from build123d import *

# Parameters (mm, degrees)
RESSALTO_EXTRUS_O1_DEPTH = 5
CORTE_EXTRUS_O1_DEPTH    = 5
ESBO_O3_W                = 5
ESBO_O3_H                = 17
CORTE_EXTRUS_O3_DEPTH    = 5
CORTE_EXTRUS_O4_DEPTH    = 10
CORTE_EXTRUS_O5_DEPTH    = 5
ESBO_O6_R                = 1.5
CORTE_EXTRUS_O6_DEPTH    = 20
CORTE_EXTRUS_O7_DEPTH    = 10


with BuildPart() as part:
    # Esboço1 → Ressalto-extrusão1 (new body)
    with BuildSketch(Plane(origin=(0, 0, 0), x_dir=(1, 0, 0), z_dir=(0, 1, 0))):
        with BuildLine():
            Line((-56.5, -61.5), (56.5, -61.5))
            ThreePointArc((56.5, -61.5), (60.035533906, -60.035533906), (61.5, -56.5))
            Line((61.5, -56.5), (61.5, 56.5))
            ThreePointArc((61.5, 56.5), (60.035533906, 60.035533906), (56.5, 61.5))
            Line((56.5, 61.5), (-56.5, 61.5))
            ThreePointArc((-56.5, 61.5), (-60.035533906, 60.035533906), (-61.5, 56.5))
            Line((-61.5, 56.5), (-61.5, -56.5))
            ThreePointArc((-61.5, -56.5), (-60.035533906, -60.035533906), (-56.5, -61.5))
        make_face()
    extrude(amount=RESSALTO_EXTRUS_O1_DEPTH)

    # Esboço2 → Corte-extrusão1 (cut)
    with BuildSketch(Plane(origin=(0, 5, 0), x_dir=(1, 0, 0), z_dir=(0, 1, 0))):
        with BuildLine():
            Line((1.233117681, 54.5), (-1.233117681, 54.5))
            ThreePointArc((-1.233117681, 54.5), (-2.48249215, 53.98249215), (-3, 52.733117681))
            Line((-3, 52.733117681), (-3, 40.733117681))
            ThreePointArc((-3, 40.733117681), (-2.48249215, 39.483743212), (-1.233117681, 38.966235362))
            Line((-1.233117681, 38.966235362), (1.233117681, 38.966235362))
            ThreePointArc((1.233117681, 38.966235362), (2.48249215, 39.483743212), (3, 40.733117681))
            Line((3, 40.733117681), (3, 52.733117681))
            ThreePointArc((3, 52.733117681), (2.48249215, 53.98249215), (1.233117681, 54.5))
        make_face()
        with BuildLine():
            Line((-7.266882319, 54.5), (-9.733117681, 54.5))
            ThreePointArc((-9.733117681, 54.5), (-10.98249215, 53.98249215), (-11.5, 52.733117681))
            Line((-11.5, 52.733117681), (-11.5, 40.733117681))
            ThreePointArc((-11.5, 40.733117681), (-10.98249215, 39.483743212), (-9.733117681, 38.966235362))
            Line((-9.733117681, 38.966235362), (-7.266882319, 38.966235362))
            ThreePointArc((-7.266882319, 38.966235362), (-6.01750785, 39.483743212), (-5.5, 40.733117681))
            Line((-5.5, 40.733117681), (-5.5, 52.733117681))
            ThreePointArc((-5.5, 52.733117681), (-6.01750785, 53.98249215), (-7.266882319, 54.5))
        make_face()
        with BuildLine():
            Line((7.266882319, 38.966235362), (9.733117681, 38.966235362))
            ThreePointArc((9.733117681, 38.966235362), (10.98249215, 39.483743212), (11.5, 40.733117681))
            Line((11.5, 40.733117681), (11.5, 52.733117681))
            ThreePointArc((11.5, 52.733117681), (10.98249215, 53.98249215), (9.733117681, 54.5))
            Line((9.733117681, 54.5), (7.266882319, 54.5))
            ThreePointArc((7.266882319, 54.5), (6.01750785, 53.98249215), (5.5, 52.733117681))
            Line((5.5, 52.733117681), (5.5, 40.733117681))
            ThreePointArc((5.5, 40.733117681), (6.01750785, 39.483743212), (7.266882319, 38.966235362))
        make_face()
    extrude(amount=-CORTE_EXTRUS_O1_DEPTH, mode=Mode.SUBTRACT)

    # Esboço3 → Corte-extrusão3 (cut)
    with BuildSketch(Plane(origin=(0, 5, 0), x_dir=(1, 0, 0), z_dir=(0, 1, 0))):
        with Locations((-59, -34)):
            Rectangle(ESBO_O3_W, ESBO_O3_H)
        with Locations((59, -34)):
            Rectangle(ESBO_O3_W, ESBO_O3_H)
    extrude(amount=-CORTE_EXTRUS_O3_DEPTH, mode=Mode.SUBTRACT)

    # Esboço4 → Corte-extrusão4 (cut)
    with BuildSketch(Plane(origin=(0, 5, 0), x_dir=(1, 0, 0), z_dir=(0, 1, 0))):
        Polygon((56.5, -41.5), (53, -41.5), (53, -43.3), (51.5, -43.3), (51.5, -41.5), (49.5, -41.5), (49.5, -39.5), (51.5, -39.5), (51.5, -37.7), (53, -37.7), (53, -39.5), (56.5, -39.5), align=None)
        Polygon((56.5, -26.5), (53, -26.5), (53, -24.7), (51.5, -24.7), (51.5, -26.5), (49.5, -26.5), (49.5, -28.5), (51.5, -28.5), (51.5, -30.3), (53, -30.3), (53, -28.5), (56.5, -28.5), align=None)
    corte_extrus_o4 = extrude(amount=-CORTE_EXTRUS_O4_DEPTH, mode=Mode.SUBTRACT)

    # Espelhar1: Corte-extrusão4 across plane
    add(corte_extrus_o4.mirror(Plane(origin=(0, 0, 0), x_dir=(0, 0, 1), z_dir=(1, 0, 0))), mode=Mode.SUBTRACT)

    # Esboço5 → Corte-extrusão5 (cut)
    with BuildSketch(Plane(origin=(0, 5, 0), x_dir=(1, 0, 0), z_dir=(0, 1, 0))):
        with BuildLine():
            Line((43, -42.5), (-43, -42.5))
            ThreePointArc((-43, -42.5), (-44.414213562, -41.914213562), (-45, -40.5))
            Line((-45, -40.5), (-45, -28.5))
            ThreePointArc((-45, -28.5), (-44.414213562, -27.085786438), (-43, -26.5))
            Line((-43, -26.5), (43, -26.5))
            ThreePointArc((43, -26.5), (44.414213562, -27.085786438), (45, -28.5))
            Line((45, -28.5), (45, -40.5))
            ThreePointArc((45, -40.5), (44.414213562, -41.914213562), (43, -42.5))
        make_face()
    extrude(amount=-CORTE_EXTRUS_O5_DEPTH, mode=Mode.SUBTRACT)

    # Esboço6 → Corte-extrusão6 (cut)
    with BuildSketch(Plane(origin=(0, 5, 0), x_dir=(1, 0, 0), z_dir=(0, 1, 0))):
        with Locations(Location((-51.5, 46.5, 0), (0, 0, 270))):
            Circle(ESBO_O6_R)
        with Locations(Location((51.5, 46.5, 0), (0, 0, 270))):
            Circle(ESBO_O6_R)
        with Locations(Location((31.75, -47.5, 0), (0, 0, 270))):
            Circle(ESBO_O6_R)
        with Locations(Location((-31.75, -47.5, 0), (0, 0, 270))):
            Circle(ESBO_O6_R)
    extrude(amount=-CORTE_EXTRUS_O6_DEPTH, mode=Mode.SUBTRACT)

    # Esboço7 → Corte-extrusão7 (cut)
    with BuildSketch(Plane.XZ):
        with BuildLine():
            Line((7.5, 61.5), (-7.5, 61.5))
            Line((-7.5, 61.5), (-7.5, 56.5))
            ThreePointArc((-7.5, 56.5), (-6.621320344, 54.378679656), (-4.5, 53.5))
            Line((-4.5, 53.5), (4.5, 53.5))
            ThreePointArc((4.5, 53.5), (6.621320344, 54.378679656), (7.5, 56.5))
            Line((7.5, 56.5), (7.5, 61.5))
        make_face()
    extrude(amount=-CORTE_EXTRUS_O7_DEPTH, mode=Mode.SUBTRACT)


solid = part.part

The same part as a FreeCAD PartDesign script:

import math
import FreeCAD as App
import Part
import Sketcher
Q = App.Units.Quantity

doc = App.newDocument("Part")
params = doc.addObject("Spreadsheet::Sheet", "Params")
for row, (alias, value) in enumerate([
    ("sketch1_radius", "5 mm"),
    ("sketch1_width", "113 mm"),
    ("pad1_length", "5 mm"),
    ("sketch2_height", "12 mm"),
    ("pocket1_length", "5 mm"),
    ("sketch3_width", "5 mm"),
    ("sketch3_height", "17 mm"),
    ("pocket2_length", "5 mm"),
    ("sketch4_width", "2 mm"),
    ("sketch4_width2", "3.5 mm"),
    ("sketch4_width3", "1.5 mm"),
    ("sketch4_height", "1.8 mm"),
    ("pocket3_length", "10 mm"),
    ("sketch5_radius", "2 mm"),
    ("sketch5_width", "86 mm"),
    ("sketch5_height", "12 mm"),
    ("pocket4_length", "5 mm"),
    ("sketch6_diameter", "3 mm"),
    ("pocket5_length", "20 mm"),
    ("sketch7_radius", "3 mm"),
    ("sketch7_width", "15 mm"),
    ("sketch7_height", "5 mm"),
    ("pocket6_length", "10 mm"),
], start=1):
    params.set(f"A{row}", alias)
    params.set(f"B{row}", "=" + value)
    params.setAlias(f"B{row}", alias)

body = doc.addObject("PartDesign::Body", "Body")

# Sketch on XZ plane
sketch1 = body.newObject("Sketcher::SketchObject", "Sketch")
sketch1.AttachmentSupport = (doc.getObject("XZ_Plane"), [""])
sketch1.MapMode = "FlatFace"
sketch1.addGeometry(Part.LineSegment(App.Vector(-56.5, 61.5, 0), App.Vector(56.5, 61.5, 0)), False)
sketch1.addGeometry(Part.ArcOfCircle(Part.Circle(App.Vector(56.5, 56.5, 0), App.Vector(0, 0, 1), 5), math.radians(0), math.radians(90)), False)
sketch1.addGeometry(Part.LineSegment(App.Vector(61.5, 56.5, 0), App.Vector(61.5, -56.5, 0)), False)
sketch1.addGeometry(Part.ArcOfCircle(Part.Circle(App.Vector(56.5, -56.5, 0), App.Vector(0, 0, 1), 5), math.radians(-90), math.radians(0)), False)
sketch1.addGeometry(Part.LineSegment(App.Vector(56.5, -61.5, 0), App.Vector(-56.5, -61.5, 0)), False)
sketch1.addGeometry(Part.ArcOfCircle(Part.Circle(App.Vector(-56.5, -56.5, 0), App.Vector(0, 0, 1), 5), math.radians(180), math.radians(270)), False)
sketch1.addGeometry(Part.LineSegment(App.Vector(-61.5, -56.5, 0), App.Vector(-61.5, 56.5, 0)), False)
sketch1.addGeometry(Part.ArcOfCircle(Part.Circle(App.Vector(-56.5, 56.5, 0), App.Vector(0, 0, 1), 5), math.radians(90), math.radians(180)), False)
sketch1.addConstraint(Sketcher.Constraint("Tangent", 0, 2, 1, 2))
sketch1.addConstraint(Sketcher.Constraint("Tangent", 1, 1, 2, 1))
sketch1.addConstraint(Sketcher.Constraint("Tangent", 2, 2, 3, 2))
sketch1.addConstraint(Sketcher.Constraint("Tangent", 3, 1, 4, 1))
sketch1.addConstraint(Sketcher.Constraint("Tangent", 4, 2, 5, 2))
sketch1.addConstraint(Sketcher.Constraint("Tangent", 5, 1, 6, 1))
sketch1.addConstraint(Sketcher.Constraint("Tangent", 6, 2, 7, 2))
sketch1.addConstraint(Sketcher.Constraint("Tangent", 7, 1, 0, 1))
sketch1.addConstraint(Sketcher.Constraint("Horizontal", 0))
sketch1.addConstraint(Sketcher.Constraint("Vertical", 2))
sketch1.addConstraint(Sketcher.Constraint("Horizontal", 4))
sketch1.addConstraint(Sketcher.Constraint("Vertical", 6))
sketch1.addConstraint(Sketcher.Constraint("Equal", 1, 3))
sketch1.addConstraint(Sketcher.Constraint("Equal", 3, 5))
sketch1.addConstraint(Sketcher.Constraint("Equal", 5, 7))
sketch1.addConstraint(Sketcher.Constraint("Symmetric", 1, 3, 5, 3, -1, 1))
sketch1.addConstraint(Sketcher.Constraint("Equal", 4, 2))
sketch1.addConstraint(Sketcher.Constraint("Radius", 1, Q("5 mm")))
sketch1.addConstraint(Sketcher.Constraint("DistanceX", 0, 1, 0, 2, Q("113 mm")))
sketch1.setExpression("Constraints[17]", "Params.sketch1_radius")
sketch1.setExpression("Constraints[18]", "Params.sketch1_width")
pad1 = body.newObject("PartDesign::Pad", "Pad")
pad1.Profile = sketch1
pad1.setExpression("Length", "Params.pad1_length")
pad1.Reversed = True

# Sketch on XZ plane
sketch2 = body.newObject("Sketcher::SketchObject", "Sketch001")
sketch2.AttachmentSupport = (doc.getObject("XZ_Plane"), [""])
sketch2.MapMode = "FlatFace"
sketch2.AttachmentOffset = App.Placement(App.Vector(0, 0, -5), App.Rotation())
sketch2.addGeometry(Part.LineSegment(App.Vector(1.233118, -54.5, 0), App.Vector(-1.233118, -54.5, 0)), False)
sketch2.addGeometry(Part.ArcOfCircle(Part.Circle(App.Vector(-1.233118, -52.733118, 0), App.Vector(0, 0, 1), 1.766882), math.radians(-180), math.radians(-90)), False)
sketch2.addGeometry(Part.LineSegment(App.Vector(-3, -52.733118, 0), App.Vector(-3, -40.733118, 0)), False)
sketch2.addGeometry(Part.ArcOfCircle(Part.Circle(App.Vector(-1.233118, -40.733118, 0), App.Vector(0, 0, 1), 1.766882), math.radians(90), math.radians(180)), False)
sketch2.addGeometry(Part.LineSegment(App.Vector(-1.233118, -38.966235, 0), App.Vector(1.233118, -38.966235, 0)), False)
sketch2.addGeometry(Part.ArcOfCircle(Part.Circle(App.Vector(1.233118, -40.733118, 0), App.Vector(0, 0, 1), 1.766882), math.radians(0), math.radians(90)), False)
sketch2.addGeometry(Part.LineSegment(App.Vector(3, -40.733118, 0), App.Vector(3, -52.733118, 0)), False)
sketch2.addGeometry(Part.ArcOfCircle(Part.Circle(App.Vector(1.233118, -52.733118, 0), App.Vector(0, 0, 1), 1.766882), math.radians(-90), math.radians(0)), False)
sketch2.addGeometry(Part.LineSegment(App.Vector(-7.266882, -54.5, 0), App.Vector(-9.733118, -54.5, 0)), False)
sketch2.addGeometry(Part.ArcOfCircle(Part.Circle(App.Vector(-9.733118, -52.733118, 0), App.Vector(0, 0, 1), 1.766882), math.radians(-180), math.radians(-90)), False)
sketch2.addGeometry(Part.LineSegment(App.Vector(-11.5, -52.733118, 0), App.Vector(-11.5, -40.733118, 0)), False)
sketch2.addGeometry(Part.ArcOfCircle(Part.Circle(App.Vector(-9.733118, -40.733118, 0), App.Vector(0, 0, 1), 1.766882), math.radians(90), math.radians(180)), False)
sketch2.addGeometry(Part.LineSegment(App.Vector(-9.733118, -38.966235, 0), App.Vector(-7.266882, -38.966235, 0)), False)
sketch2.addGeometry(Part.ArcOfCircle(Part.Circle(App.Vector(-7.266882, -40.733118, 0), App.Vector(0, 0, 1), 1.766882), math.radians(0), math.radians(90)), False)
sketch2.addGeometry(Part.LineSegment(App.Vector(-5.5, -40.733118, 0), App.Vector(-5.5, -52.733118, 0)), False)
sketch2.addGeometry(Part.ArcOfCircle(Part.Circle(App.Vector(-7.266882, -52.733118, 0), App.Vector(0, 0, 1), 1.766882), math.radians(-90), math.radians(0)), False)
sketch2.addGeometry(Part.LineSegment(App.Vector(7.266882, -38.966235, 0), App.Vector(9.733118, -38.966235, 0)), False)
sketch2.addGeometry(Part.ArcOfCircle(Part.Circle(App.Vector(9.733118, -40.733118, 0), App.Vector(0, 0, 1), 1.766882), math.radians(0), math.radians(90)), False)
sketch2.addGeometry(Part.LineSegment(App.Vector(11.5, -40.733118, 0), App.Vector(11.5, -52.733118, 0)), False)
sketch2.addGeometry(Part.ArcOfCircle(Part.Circle(App.Vector(9.733118, -52.733118, 0), App.Vector(0, 0, 1), 1.766882), math.radians(-90), math.radians(0)), False)
sketch2.addGeometry(Part.LineSegment(App.Vector(9.733118, -54.5, 0), App.Vector(7.266882, -54.5, 0)), False)
sketch2.addGeometry(Part.ArcOfCircle(Part.Circle(App.Vector(7.266882, -52.733118, 0), App.Vector(0, 0, 1), 1.766882), math.radians(-180), math.radians(-90)), False)
sketch2.addGeometry(Part.LineSegment(App.Vector(5.5, -52.733118, 0), App.Vector(5.5, -40.733118, 0)), False)
sketch2.addGeometry(Part.ArcOfCircle(Part.Circle(App.Vector(7.266882, -40.733118, 0), App.Vector(0, 0, 1), 1.766882), math.radians(90), math.radians(180)), False)
sketch2.addConstraint(Sketcher.Constraint("Tangent", 0, 2, 1, 2))
sketch2.addConstraint(Sketcher.Constraint("Tangent", 1, 1, 2, 1))
sketch2.addConstraint(Sketcher.Constraint("Tangent", 2, 2, 3, 2))
sketch2.addConstraint(Sketcher.Constraint("Tangent", 3, 1, 4, 1))
sketch2.addConstraint(Sketcher.Constraint("Tangent", 4, 2, 5, 2))
sketch2.addConstraint(Sketcher.Constraint("Tangent", 5, 1, 6, 1))
sketch2.addConstraint(Sketcher.Constraint("Tangent", 6, 2, 7, 2))
sketch2.addConstraint(Sketcher.Constraint("Tangent", 7, 1, 0, 1))
sketch2.addConstraint(Sketcher.Constraint("Tangent", 8, 2, 9, 2))
sketch2.addConstraint(Sketcher.Constraint("Tangent", 9, 1, 10, 1))
sketch2.addConstraint(Sketcher.Constraint("Tangent", 10, 2, 11, 2))
sketch2.addConstraint(Sketcher.Constraint("Tangent", 11, 1, 12, 1))
sketch2.addConstraint(Sketcher.Constraint("Tangent", 12, 2, 13, 2))
sketch2.addConstraint(Sketcher.Constraint("Tangent", 13, 1, 14, 1))
sketch2.addConstraint(Sketcher.Constraint("Tangent", 14, 2, 15, 2))
sketch2.addConstraint(Sketcher.Constraint("Tangent", 15, 1, 8, 1))
sketch2.addConstraint(Sketcher.Constraint("Tangent", 16, 2, 17, 2))
sketch2.addConstraint(Sketcher.Constraint("Tangent", 17, 1, 18, 1))
sketch2.addConstraint(Sketcher.Constraint("Tangent", 18, 2, 19, 2))
sketch2.addConstraint(Sketcher.Constraint("Tangent", 19, 1, 20, 1))
sketch2.addConstraint(Sketcher.Constraint("Tangent", 20, 2, 21, 2))
sketch2.addConstraint(Sketcher.Constraint("Tangent", 21, 1, 22, 1))
sketch2.addConstraint(Sketcher.Constraint("Tangent", 22, 2, 23, 2))
sketch2.addConstraint(Sketcher.Constraint("Tangent", 23, 1, 16, 1))
sketch2.addConstraint(Sketcher.Constraint("Horizontal", 0))
sketch2.addConstraint(Sketcher.Constraint("Vertical", 2))
sketch2.addConstraint(Sketcher.Constraint("Horizontal", 4))
sketch2.addConstraint(Sketcher.Constraint("Vertical", 6))
sketch2.addConstraint(Sketcher.Constraint("Horizontal", 8))
sketch2.addConstraint(Sketcher.Constraint("Vertical", 10))
sketch2.addConstraint(Sketcher.Constraint("Horizontal", 12))
sketch2.addConstraint(Sketcher.Constraint("Vertical", 14))
sketch2.addConstraint(Sketcher.Constraint("Horizontal", 16))
sketch2.addConstraint(Sketcher.Constraint("Vertical", 18))
sketch2.addConstraint(Sketcher.Constraint("Horizontal", 20))
sketch2.addConstraint(Sketcher.Constraint("Vertical", 22))
sketch2.addConstraint(Sketcher.Constraint("Equal", 1, 3))
sketch2.addConstraint(Sketcher.Constraint("Equal", 3, 5))
sketch2.addConstraint(Sketcher.Constraint("Equal", 5, 7))
sketch2.addConstraint(Sketcher.Constraint("Equal", 7, 9))
sketch2.addConstraint(Sketcher.Constraint("Equal", 9, 11))
sketch2.addConstraint(Sketcher.Constraint("Equal", 11, 13))
sketch2.addConstraint(Sketcher.Constraint("Equal", 13, 15))
sketch2.addConstraint(Sketcher.Constraint("Equal", 15, 17))
sketch2.addConstraint(Sketcher.Constraint("Equal", 17, 19))
sketch2.addConstraint(Sketcher.Constraint("Equal", 19, 21))
sketch2.addConstraint(Sketcher.Constraint("Equal", 21, 23))
sketch2.addConstraint(Sketcher.Constraint("Symmetric", 11, 3, 17, 3, -2))
sketch2.addConstraint(Sketcher.Constraint("Symmetric", 15, 3, 21, 3, -2))
sketch2.addConstraint(Sketcher.Constraint("Horizontal", 7, 3, 9, 3))
sketch2.addConstraint(Sketcher.Constraint("Horizontal", 5, 3, 11, 3))
sketch2.addConstraint(Sketcher.Constraint("Equal", 4, 8))
sketch2.addConstraint(Sketcher.Constraint("DistanceY", 2, 1, 2, 2, Q("12 mm")))
sketch2.addConstraint(Sketcher.Constraint("DistanceX", 1, 1, -1, 1, Q("3 mm")))
sketch2.addConstraint(Sketcher.Constraint("DistanceX", -1, 1, 5, 1, Q("3 mm")))
sketch2.addConstraint(Sketcher.Constraint("DistanceX", 13, 3, 17, 3, Q("17 mm")))
sketch2.addConstraint(Sketcher.Constraint("DistanceY", 0, 2, -1, 1, Q("54.5 mm")))
sketch2.addConstraint(Sketcher.Constraint("Radius", 1, Q("1.766882 mm")))
sketch2.setExpression("Constraints[52]", "Params.sketch2_height")
pocket1 = body.newObject("PartDesign::Pocket", "Pocket")
pocket1.Profile = sketch2
pocket1.setExpression("Length", "Params.pocket1_length")
pocket1.Reversed = True

# Sketch on XZ plane
sketch3 = body.newObject("Sketcher::SketchObject", "Sketch002")
sketch3.AttachmentSupport = (doc.getObject("XZ_Plane"), [""])
sketch3.MapMode = "FlatFace"
sketch3.AttachmentOffset = App.Placement(App.Vector(0, 0, -5), App.Rotation())
sketch3.addGeometry(Part.LineSegment(App.Vector(-61.5, 25.5, 0), App.Vector(-61.5, 42.5, 0)), False)
sketch3.addGeometry(Part.LineSegment(App.Vector(-61.5, 42.5, 0), App.Vector(-56.5, 42.5, 0)), False)
sketch3.addGeometry(Part.LineSegment(App.Vector(-56.5, 42.5, 0), App.Vector(-56.5, 25.5, 0)), False)
sketch3.addGeometry(Part.LineSegment(App.Vector(-56.5, 25.5, 0), App.Vector(-61.5, 25.5, 0)), False)
sketch3.addGeometry(Part.LineSegment(App.Vector(56.5, 25.5, 0), App.Vector(56.5, 42.5, 0)), False)
sketch3.addGeometry(Part.LineSegment(App.Vector(56.5, 42.5, 0), App.Vector(61.5, 42.5, 0)), False)
sketch3.addGeometry(Part.LineSegment(App.Vector(61.5, 42.5, 0), App.Vector(61.5, 25.5, 0)), False)
sketch3.addGeometry(Part.LineSegment(App.Vector(61.5, 25.5, 0), App.Vector(56.5, 25.5, 0)), False)
sketch3.addConstraint(Sketcher.Constraint("Coincident", 0, 2, 1, 1))
sketch3.addConstraint(Sketcher.Constraint("Coincident", 1, 2, 2, 1))
sketch3.addConstraint(Sketcher.Constraint("Coincident", 2, 2, 3, 1))
sketch3.addConstraint(Sketcher.Constraint("Coincident", 3, 2, 0, 1))
sketch3.addConstraint(Sketcher.Constraint("Coincident", 4, 2, 5, 1))
sketch3.addConstraint(Sketcher.Constraint("Coincident", 5, 2, 6, 1))
sketch3.addConstraint(Sketcher.Constraint("Coincident", 6, 2, 7, 1))
sketch3.addConstraint(Sketcher.Constraint("Coincident", 7, 2, 4, 1))
sketch3.addConstraint(Sketcher.Constraint("Vertical", 0))
sketch3.addConstraint(Sketcher.Constraint("Horizontal", 1))
sketch3.addConstraint(Sketcher.Constraint("Vertical", 2))
sketch3.addConstraint(Sketcher.Constraint("Horizontal", 3))
sketch3.addConstraint(Sketcher.Constraint("Vertical", 4))
sketch3.addConstraint(Sketcher.Constraint("Horizontal", 5))
sketch3.addConstraint(Sketcher.Constraint("Vertical", 6))
sketch3.addConstraint(Sketcher.Constraint("Horizontal", 7))
sketch3.addConstraint(Sketcher.Constraint("Symmetric", 1, 2, 4, 2, -2))
sketch3.addConstraint(Sketcher.Constraint("Symmetric", 3, 2, 6, 2, -2))
sketch3.addConstraint(Sketcher.Constraint("DistanceX", 1, 1, 1, 2, Q("5 mm")))
sketch3.addConstraint(Sketcher.Constraint("DistanceY", 0, 1, 0, 2, Q("17 mm")))
sketch3.addConstraint(Sketcher.Constraint("DistanceX", 1, 2, 4, 2, Q("113 mm")))
sketch3.addConstraint(Sketcher.Constraint("DistanceY", -1, 1, 0, 2, Q("42.5 mm")))
sketch3.setExpression("Constraints[18]", "Params.sketch3_width")
sketch3.setExpression("Constraints[19]", "Params.sketch3_height")
pocket2 = body.newObject("PartDesign::Pocket", "Pocket001")
pocket2.Profile = sketch3
pocket2.setExpression("Length", "Params.pocket2_length")
pocket2.Reversed = True

# Sketch on XZ plane
sketch4 = body.newObject("Sketcher::SketchObject", "Sketch003")
sketch4.AttachmentSupport = (doc.getObject("XZ_Plane"), [""])
sketch4.MapMode = "FlatFace"
sketch4.AttachmentOffset = App.Placement(App.Vector(0, 0, -5), App.Rotation())
sketch4.addGeometry(Part.LineSegment(App.Vector(53, 41.5, 0), App.Vector(56.5, 41.5, 0)), False)
sketch4.addGeometry(Part.LineSegment(App.Vector(56.5, 41.5, 0), App.Vector(56.5, 39.5, 0)), False)
sketch4.addGeometry(Part.LineSegment(App.Vector(56.5, 39.5, 0), App.Vector(53, 39.5, 0)), False)
sketch4.addGeometry(Part.LineSegment(App.Vector(53, 39.5, 0), App.Vector(53, 37.7, 0)), False)
sketch4.addGeometry(Part.LineSegment(App.Vector(53, 37.7, 0), App.Vector(51.5, 37.7, 0)), False)
sketch4.addGeometry(Part.LineSegment(App.Vector(51.5, 37.7, 0), App.Vector(51.5, 39.5, 0)), False)
sketch4.addGeometry(Part.LineSegment(App.Vector(51.5, 39.5, 0), App.Vector(49.5, 39.5, 0)), False)
sketch4.addGeometry(Part.LineSegment(App.Vector(49.5, 39.5, 0), App.Vector(49.5, 41.5, 0)), False)
sketch4.addGeometry(Part.LineSegment(App.Vector(49.5, 41.5, 0), App.Vector(51.5, 41.5, 0)), False)
sketch4.addGeometry(Part.LineSegment(App.Vector(51.5, 41.5, 0), App.Vector(51.5, 43.3, 0)), False)
sketch4.addGeometry(Part.LineSegment(App.Vector(51.5, 43.3, 0), App.Vector(53, 43.3, 0)), False)
sketch4.addGeometry(Part.LineSegment(App.Vector(53, 43.3, 0), App.Vector(53, 41.5, 0)), False)
sketch4.addGeometry(Part.LineSegment(App.Vector(56.5, 26.5, 0), App.Vector(53, 26.5, 0)), False)
sketch4.addGeometry(Part.LineSegment(App.Vector(53, 26.5, 0), App.Vector(53, 24.7, 0)), False)
sketch4.addGeometry(Part.LineSegment(App.Vector(53, 24.7, 0), App.Vector(51.5, 24.7, 0)), False)
sketch4.addGeometry(Part.LineSegment(App.Vector(51.5, 24.7, 0), App.Vector(51.5, 26.5, 0)), False)
sketch4.addGeometry(Part.LineSegment(App.Vector(51.5, 26.5, 0), App.Vector(49.5, 26.5, 0)), False)
sketch4.addGeometry(Part.LineSegment(App.Vector(49.5, 26.5, 0), App.Vector(49.5, 28.5, 0)), False)
sketch4.addGeometry(Part.LineSegment(App.Vector(49.5, 28.5, 0), App.Vector(51.5, 28.5, 0)), False)
sketch4.addGeometry(Part.LineSegment(App.Vector(51.5, 28.5, 0), App.Vector(51.5, 30.3, 0)), False)
sketch4.addGeometry(Part.LineSegment(App.Vector(51.5, 30.3, 0), App.Vector(53, 30.3, 0)), False)
sketch4.addGeometry(Part.LineSegment(App.Vector(53, 30.3, 0), App.Vector(53, 28.5, 0)), False)
sketch4.addGeometry(Part.LineSegment(App.Vector(53, 28.5, 0), App.Vector(56.5, 28.5, 0)), False)
sketch4.addGeometry(Part.LineSegment(App.Vector(56.5, 28.5, 0), App.Vector(56.5, 26.5, 0)), False)
sketch4.addConstraint(Sketcher.Constraint("Coincident", 0, 2, 1, 1))
sketch4.addConstraint(Sketcher.Constraint("Coincident", 1, 2, 2, 1))
sketch4.addConstraint(Sketcher.Constraint("Coincident", 2, 2, 3, 1))
sketch4.addConstraint(Sketcher.Constraint("Coincident", 3, 2, 4, 1))
sketch4.addConstraint(Sketcher.Constraint("Coincident", 4, 2, 5, 1))
sketch4.addConstraint(Sketcher.Constraint("Coincident", 5, 2, 6, 1))
sketch4.addConstraint(Sketcher.Constraint("Coincident", 6, 2, 7, 1))
sketch4.addConstraint(Sketcher.Constraint("Coincident", 7, 2, 8, 1))
sketch4.addConstraint(Sketcher.Constraint("Coincident", 8, 2, 9, 1))
sketch4.addConstraint(Sketcher.Constraint("Coincident", 9, 2, 10, 1))
sketch4.addConstraint(Sketcher.Constraint("Coincident", 10, 2, 11, 1))
sketch4.addConstraint(Sketcher.Constraint("Coincident", 11, 2, 0, 1))
sketch4.addConstraint(Sketcher.Constraint("Coincident", 12, 2, 13, 1))
sketch4.addConstraint(Sketcher.Constraint("Coincident", 13, 2, 14, 1))
sketch4.addConstraint(Sketcher.Constraint("Coincident", 14, 2, 15, 1))
sketch4.addConstraint(Sketcher.Constraint("Coincident", 15, 2, 16, 1))
sketch4.addConstraint(Sketcher.Constraint("Coincident", 16, 2, 17, 1))
sketch4.addConstraint(Sketcher.Constraint("Coincident", 17, 2, 18, 1))
sketch4.addConstraint(Sketcher.Constraint("Coincident", 18, 2, 19, 1))
sketch4.addConstraint(Sketcher.Constraint("Coincident", 19, 2, 20, 1))
sketch4.addConstraint(Sketcher.Constraint("Coincident", 20, 2, 21, 1))
sketch4.addConstraint(Sketcher.Constraint("Coincident", 21, 2, 22, 1))
sketch4.addConstraint(Sketcher.Constraint("Coincident", 22, 2, 23, 1))
sketch4.addConstraint(Sketcher.Constraint("Coincident", 23, 2, 12, 1))
sketch4.addConstraint(Sketcher.Constraint("Horizontal", 0))
sketch4.addConstraint(Sketcher.Constraint("Vertical", 1))
sketch4.addConstraint(Sketcher.Constraint("Horizontal", 2))
sketch4.addConstraint(Sketcher.Constraint("Vertical", 3))
sketch4.addConstraint(Sketcher.Constraint("Horizontal", 4))
sketch4.addConstraint(Sketcher.Constraint("Vertical", 5))
sketch4.addConstraint(Sketcher.Constraint("Horizontal", 6))
sketch4.addConstraint(Sketcher.Constraint("Vertical", 7))
sketch4.addConstraint(Sketcher.Constraint("Horizontal", 8))
sketch4.addConstraint(Sketcher.Constraint("Vertical", 9))
sketch4.addConstraint(Sketcher.Constraint("Horizontal", 10))
sketch4.addConstraint(Sketcher.Constraint("Vertical", 11))
sketch4.addConstraint(Sketcher.Constraint("Horizontal", 12))
sketch4.addConstraint(Sketcher.Constraint("Vertical", 13))
sketch4.addConstraint(Sketcher.Constraint("Horizontal", 14))
sketch4.addConstraint(Sketcher.Constraint("Vertical", 15))
sketch4.addConstraint(Sketcher.Constraint("Horizontal", 16))
sketch4.addConstraint(Sketcher.Constraint("Vertical", 17))
sketch4.addConstraint(Sketcher.Constraint("Horizontal", 18))
sketch4.addConstraint(Sketcher.Constraint("Vertical", 19))
sketch4.addConstraint(Sketcher.Constraint("Horizontal", 20))
sketch4.addConstraint(Sketcher.Constraint("Vertical", 21))
sketch4.addConstraint(Sketcher.Constraint("Horizontal", 22))
sketch4.addConstraint(Sketcher.Constraint("Vertical", 23))
sketch4.addConstraint(Sketcher.Constraint("Horizontal", 2, 2, 5, 2))
sketch4.addConstraint(Sketcher.Constraint("Horizontal", 0, 2, 7, 2))
sketch4.addConstraint(Sketcher.Constraint("Horizontal", 12, 2, 15, 2))
sketch4.addConstraint(Sketcher.Constraint("Horizontal", 18, 2, 21, 2))
sketch4.addConstraint(Sketcher.Constraint("Vertical", 5, 2, 8, 2))
sketch4.addConstraint(Sketcher.Constraint("Vertical", 3, 2, 10, 2))
sketch4.addConstraint(Sketcher.Constraint("Vertical", 11, 2, 12, 2))
sketch4.addConstraint(Sketcher.Constraint("Vertical", 9, 2, 14, 2))
sketch4.addConstraint(Sketcher.Constraint("Vertical", 7, 2, 16, 2))
sketch4.addConstraint(Sketcher.Constraint("Vertical", 15, 2, 18, 2))
sketch4.addConstraint(Sketcher.Constraint("Vertical", 13, 2, 20, 2))
sketch4.addConstraint(Sketcher.Constraint("Vertical", 1, 2, 22, 2))
sketch4.addConstraint(Sketcher.Constraint("Equal", 18, 1))
sketch4.addConstraint(Sketcher.Constraint("Equal", 5, 9))
sketch4.addConstraint(Sketcher.Constraint("Equal", 11, 13))
sketch4.addConstraint(Sketcher.Constraint("Equal", 7, 17))
sketch4.addConstraint(Sketcher.Constraint("Equal", 15, 19))
sketch4.addConstraint(Sketcher.Constraint("DistanceX", 6, 2, 6, 1, Q("2 mm")))
sketch4.addConstraint(Sketcher.Constraint("DistanceX", 0, 1, 0, 2, Q("3.5 mm")))
sketch4.addConstraint(Sketcher.Constraint("DistanceX", 4, 2, 4, 1, Q("1.5 mm")))
sketch4.addConstraint(Sketcher.Constraint("DistanceY", 3, 2, 3, 1, Q("1.8 mm")))
sketch4.addConstraint(Sketcher.Constraint("DistanceX", -1, 1, 2, 2, Q("53 mm")))
sketch4.addConstraint(Sketcher.Constraint("DistanceY", 12, 2, 2, 2, Q("13 mm")))
sketch4.addConstraint(Sketcher.Constraint("DistanceY", -1, 1, 0, 2, Q("41.5 mm")))
sketch4.setExpression("Constraints[65]", "Params.sketch4_width")
sketch4.setExpression("Constraints[66]", "Params.sketch4_width2")
sketch4.setExpression("Constraints[67]", "Params.sketch4_width3")
sketch4.setExpression("Constraints[68]", "Params.sketch4_height")
pocket3 = body.newObject("PartDesign::Pocket", "Pocket002")
pocket3.Profile = sketch4
pocket3.setExpression("Length", "Params.pocket3_length")
pocket3.Reversed = True
doc.recompute()

mirrored = body.newObject("PartDesign::Mirrored", "Mirrored")
mirrored.Originals = [pocket3]
mirrored.MirrorPlane = (doc.getObject("YZ_Plane"), [""])
body.Tip = mirrored

# Sketch on XZ plane
sketch5 = body.newObject("Sketcher::SketchObject", "Sketch004")
sketch5.AttachmentSupport = (doc.getObject("XZ_Plane"), [""])
sketch5.MapMode = "FlatFace"
sketch5.AttachmentOffset = App.Placement(App.Vector(0, 0, -5), App.Rotation())
sketch5.addGeometry(Part.LineSegment(App.Vector(-43, 42.5, 0), App.Vector(43, 42.5, 0)), False)
sketch5.addGeometry(Part.ArcOfCircle(Part.Circle(App.Vector(43, 40.5, 0), App.Vector(0, 0, 1), 2), math.radians(0), math.radians(90)), False)
sketch5.addGeometry(Part.LineSegment(App.Vector(45, 40.5, 0), App.Vector(45, 28.5, 0)), False)
sketch5.addGeometry(Part.ArcOfCircle(Part.Circle(App.Vector(43, 28.5, 0), App.Vector(0, 0, 1), 2), math.radians(-90), math.radians(0)), False)
sketch5.addGeometry(Part.LineSegment(App.Vector(43, 26.5, 0), App.Vector(-43, 26.5, 0)), False)
sketch5.addGeometry(Part.ArcOfCircle(Part.Circle(App.Vector(-43, 28.5, 0), App.Vector(0, 0, 1), 2), math.radians(-180), math.radians(-90)), False)
sketch5.addGeometry(Part.LineSegment(App.Vector(-45, 28.5, 0), App.Vector(-45, 40.5, 0)), False)
sketch5.addGeometry(Part.ArcOfCircle(Part.Circle(App.Vector(-43, 40.5, 0), App.Vector(0, 0, 1), 2), math.radians(90), math.radians(180)), False)
sketch5.addConstraint(Sketcher.Constraint("Tangent", 0, 2, 1, 2))
sketch5.addConstraint(Sketcher.Constraint("Tangent", 1, 1, 2, 1))
sketch5.addConstraint(Sketcher.Constraint("Tangent", 2, 2, 3, 2))
sketch5.addConstraint(Sketcher.Constraint("Tangent", 3, 1, 4, 1))
sketch5.addConstraint(Sketcher.Constraint("Tangent", 4, 2, 5, 2))
sketch5.addConstraint(Sketcher.Constraint("Tangent", 5, 1, 6, 1))
sketch5.addConstraint(Sketcher.Constraint("Tangent", 6, 2, 7, 2))
sketch5.addConstraint(Sketcher.Constraint("Tangent", 7, 1, 0, 1))
sketch5.addConstraint(Sketcher.Constraint("Horizontal", 0))
sketch5.addConstraint(Sketcher.Constraint("Vertical", 2))
sketch5.addConstraint(Sketcher.Constraint("Horizontal", 4))
sketch5.addConstraint(Sketcher.Constraint("Vertical", 6))
sketch5.addConstraint(Sketcher.Constraint("Equal", 1, 3))
sketch5.addConstraint(Sketcher.Constraint("Equal", 3, 5))
sketch5.addConstraint(Sketcher.Constraint("Equal", 5, 7))
sketch5.addConstraint(Sketcher.Constraint("Radius", 1, Q("2 mm")))
sketch5.addConstraint(Sketcher.Constraint("DistanceX", 0, 1, 0, 2, Q("86 mm")))
sketch5.addConstraint(Sketcher.Constraint("DistanceY", 2, 2, 2, 1, Q("12 mm")))
sketch5.addConstraint(Sketcher.Constraint("DistanceX", -1, 1, 1, 3, Q("43 mm")))
sketch5.addConstraint(Sketcher.Constraint("DistanceY", -1, 1, 1, 3, Q("40.5 mm")))
sketch5.setExpression("Constraints[15]", "Params.sketch5_radius")
sketch5.setExpression("Constraints[16]", "Params.sketch5_width")
sketch5.setExpression("Constraints[17]", "Params.sketch5_height")
pocket4 = body.newObject("PartDesign::Pocket", "Pocket003")
pocket4.Profile = sketch5
pocket4.setExpression("Length", "Params.pocket4_length")
pocket4.Reversed = True

# Sketch on XZ plane
sketch6 = body.newObject("Sketcher::SketchObject", "Sketch005")
sketch6.AttachmentSupport = (doc.getObject("XZ_Plane"), [""])
sketch6.MapMode = "FlatFace"
sketch6.AttachmentOffset = App.Placement(App.Vector(0, 0, -5), App.Rotation())
sketch6.addGeometry(Part.Circle(App.Vector(-51.5, -46.5, 0), App.Vector(0, 0, 1), 1.5), False)
sketch6.addGeometry(Part.Circle(App.Vector(51.5, -46.5, 0), App.Vector(0, 0, 1), 1.5), False)
sketch6.addGeometry(Part.Circle(App.Vector(31.75, 47.5, 0), App.Vector(0, 0, 1), 1.5), False)
sketch6.addGeometry(Part.Circle(App.Vector(-31.75, 47.5, 0), App.Vector(0, 0, 1), 1.5), False)
sketch6.addConstraint(Sketcher.Constraint("Equal", 0, 1))
sketch6.addConstraint(Sketcher.Constraint("Equal", 1, 2))
sketch6.addConstraint(Sketcher.Constraint("Equal", 2, 3))
sketch6.addConstraint(Sketcher.Constraint("Symmetric", 0, 3, 1, 3, -2))
sketch6.addConstraint(Sketcher.Constraint("Symmetric", 2, 3, 3, 3, -2))
sketch6.addConstraint(Sketcher.Constraint("Diameter", 0, Q("3 mm")))
sketch6.addConstraint(Sketcher.Constraint("DistanceX", 0, 3, 1, 3, Q("103 mm")))
sketch6.addConstraint(Sketcher.Constraint("DistanceY", 1, 3, 2, 3, Q("94 mm")))
sketch6.addConstraint(Sketcher.Constraint("DistanceY", 0, 3, -1, 1, Q("46.5 mm")))
sketch6.addConstraint(Sketcher.Constraint("DistanceX", 3, 3, 2, 3, Q("63.5 mm")))
sketch6.setExpression("Constraints[5]", "Params.sketch6_diameter")
pocket5 = body.newObject("PartDesign::Pocket", "Pocket004")
pocket5.Profile = sketch6
pocket5.setExpression("Length", "Params.pocket5_length")
pocket5.Reversed = True

# Sketch on XZ plane
sketch7 = body.newObject("Sketcher::SketchObject", "Sketch006")
sketch7.AttachmentSupport = (doc.getObject("XZ_Plane"), [""])
sketch7.MapMode = "FlatFace"
sketch7.addGeometry(Part.LineSegment(App.Vector(7.5, 61.5, 0), App.Vector(-7.5, 61.5, 0)), False)
sketch7.addGeometry(Part.LineSegment(App.Vector(-7.5, 61.5, 0), App.Vector(-7.5, 56.5, 0)), False)
sketch7.addGeometry(Part.ArcOfCircle(Part.Circle(App.Vector(-4.5, 56.5, 0), App.Vector(0, 0, 1), 3), math.radians(180), math.radians(270)), False)
sketch7.addGeometry(Part.LineSegment(App.Vector(-4.5, 53.5, 0), App.Vector(4.5, 53.5, 0)), False)
sketch7.addGeometry(Part.ArcOfCircle(Part.Circle(App.Vector(4.5, 56.5, 0), App.Vector(0, 0, 1), 3), math.radians(-90), math.radians(0)), False)
sketch7.addGeometry(Part.LineSegment(App.Vector(7.5, 56.5, 0), App.Vector(7.5, 61.5, 0)), False)
sketch7.addConstraint(Sketcher.Constraint("Coincident", 0, 2, 1, 1))
sketch7.addConstraint(Sketcher.Constraint("Tangent", 1, 2, 2, 1))
sketch7.addConstraint(Sketcher.Constraint("Tangent", 2, 2, 3, 1))
sketch7.addConstraint(Sketcher.Constraint("Tangent", 3, 2, 4, 1))
sketch7.addConstraint(Sketcher.Constraint("Tangent", 4, 2, 5, 1))
sketch7.addConstraint(Sketcher.Constraint("Coincident", 5, 2, 0, 1))
sketch7.addConstraint(Sketcher.Constraint("Horizontal", 0))
sketch7.addConstraint(Sketcher.Constraint("Vertical", 1))
sketch7.addConstraint(Sketcher.Constraint("Horizontal", 3))
sketch7.addConstraint(Sketcher.Constraint("Vertical", 5))
sketch7.addConstraint(Sketcher.Constraint("Equal", 2, 4))
sketch7.addConstraint(Sketcher.Constraint("Radius", 2, Q("3 mm")))
sketch7.addConstraint(Sketcher.Constraint("DistanceX", 0, 2, 0, 1, Q("15 mm")))
sketch7.addConstraint(Sketcher.Constraint("DistanceY", 1, 2, 1, 1, Q("5 mm")))
sketch7.addConstraint(Sketcher.Constraint("DistanceX", 2, 3, -1, 1, Q("4.5 mm")))
sketch7.addConstraint(Sketcher.Constraint("DistanceY", -1, 1, 2, 3, Q("56.5 mm")))
sketch7.setExpression("Constraints[11]", "Params.sketch7_radius")
sketch7.setExpression("Constraints[12]", "Params.sketch7_width")
sketch7.setExpression("Constraints[13]", "Params.sketch7_height")
pocket6 = body.newObject("PartDesign::Pocket", "Pocket005")
pocket6.Profile = sketch7
pocket6.setExpression("Length", "Params.pocket6_length")

doc.recompute()
